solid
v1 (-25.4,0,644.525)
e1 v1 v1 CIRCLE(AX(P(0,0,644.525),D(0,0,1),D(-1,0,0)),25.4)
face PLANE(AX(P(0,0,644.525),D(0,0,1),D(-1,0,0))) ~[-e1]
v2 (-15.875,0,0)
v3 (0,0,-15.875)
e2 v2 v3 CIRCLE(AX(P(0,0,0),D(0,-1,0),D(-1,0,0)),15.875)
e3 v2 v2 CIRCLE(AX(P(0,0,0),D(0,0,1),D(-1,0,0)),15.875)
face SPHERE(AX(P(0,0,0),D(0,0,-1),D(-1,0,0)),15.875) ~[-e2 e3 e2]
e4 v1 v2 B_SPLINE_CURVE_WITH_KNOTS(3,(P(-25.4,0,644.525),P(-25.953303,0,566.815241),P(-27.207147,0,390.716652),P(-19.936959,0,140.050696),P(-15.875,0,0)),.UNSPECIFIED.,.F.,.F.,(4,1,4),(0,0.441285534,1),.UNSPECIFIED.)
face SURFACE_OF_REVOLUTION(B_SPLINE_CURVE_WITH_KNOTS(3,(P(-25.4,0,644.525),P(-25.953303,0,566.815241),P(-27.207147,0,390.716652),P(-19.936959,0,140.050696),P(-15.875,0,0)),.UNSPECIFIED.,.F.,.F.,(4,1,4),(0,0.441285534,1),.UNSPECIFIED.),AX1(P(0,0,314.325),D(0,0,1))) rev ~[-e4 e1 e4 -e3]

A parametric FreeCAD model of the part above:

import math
import FreeCAD as App
import Part
import Sketcher

doc = App.newDocument("Part")
params = doc.addObject("Spreadsheet::Sheet", "Params")
for row, (alias, value) in enumerate([
    ("revolution_angle", "360 deg"),
], start=1):
    params.set(f"A{row}", alias)
    params.set(f"B{row}", "=" + value)
    params.setAlias(f"B{row}", alias)

body = doc.addObject("PartDesign::Body", "Body")

# Sketch on XZ plane
sketch1 = body.newObject("Sketcher::SketchObject", "Sketch")
sketch1.AttachmentSupport = (doc.getObject("XZ_Plane"), [""])
sketch1.MapMode = "FlatFace"
sketch1.addGeometry(Part.LineSegment(App.Vector(0, -15.875, 0), App.Vector(0, 644.525, 0)), False)
sketch1.addGeometry(Part.LineSegment(App.Vector(0, 644.525, 0), App.Vector(-25.4, 644.525, 0)), False)
sketch1.addGeometry(Part.BSplineCurve([App.Vector(-25.4, 644.525, 0), App.Vector(-25.953303, 566.815241, 0), App.Vector(-27.207147, 390.716652, 0), App.Vector(-19.936959, 140.050696, 0), App.Vector(-15.875, 0, 0)], [4, 1, 4], [0, 0.441285534, 1], False, 3, [1, 1, 1, 1, 1], False), False)
sketch1.addGeometry(Part.ArcOfCircle(Part.Circle(App.Vector(0, 0, 0), App.Vector(0, 0, 1), 15.875), math.radians(180), math.radians(270)), False)
sketch1.addConstraint(Sketcher.Constraint("Block", 2))
sketch1.addConstraint(Sketcher.Constraint("Coincident", 0, 2, 1, 1))
sketch1.addConstraint(Sketcher.Constraint("Coincident", 1, 2, 2, 1))
sketch1.addConstraint(Sketcher.Constraint("Coincident", 2, 2, 3, 1))
sketch1.addConstraint(Sketcher.Constraint("Coincident", 3, 2, 0, 1))
sketch1.addConstraint(Sketcher.Constraint("Vertical", 0))
sketch1.addConstraint(Sketcher.Constraint("Horizontal", 1))
sketch1.addConstraint(Sketcher.Constraint("Coincident", 3, 3, -1, 1))
sketch1.addConstraint(Sketcher.Constraint("PointOnObject", 0, 2, -2))
revolution = body.newObject("PartDesign::Revolution", "Revolution")
revolution.Profile = sketch1
revolution.ReferenceAxis = (sketch1, ["V_Axis"])
revolution.setExpression("Angle", "Params.revolution_angle")

doc.recompute()
